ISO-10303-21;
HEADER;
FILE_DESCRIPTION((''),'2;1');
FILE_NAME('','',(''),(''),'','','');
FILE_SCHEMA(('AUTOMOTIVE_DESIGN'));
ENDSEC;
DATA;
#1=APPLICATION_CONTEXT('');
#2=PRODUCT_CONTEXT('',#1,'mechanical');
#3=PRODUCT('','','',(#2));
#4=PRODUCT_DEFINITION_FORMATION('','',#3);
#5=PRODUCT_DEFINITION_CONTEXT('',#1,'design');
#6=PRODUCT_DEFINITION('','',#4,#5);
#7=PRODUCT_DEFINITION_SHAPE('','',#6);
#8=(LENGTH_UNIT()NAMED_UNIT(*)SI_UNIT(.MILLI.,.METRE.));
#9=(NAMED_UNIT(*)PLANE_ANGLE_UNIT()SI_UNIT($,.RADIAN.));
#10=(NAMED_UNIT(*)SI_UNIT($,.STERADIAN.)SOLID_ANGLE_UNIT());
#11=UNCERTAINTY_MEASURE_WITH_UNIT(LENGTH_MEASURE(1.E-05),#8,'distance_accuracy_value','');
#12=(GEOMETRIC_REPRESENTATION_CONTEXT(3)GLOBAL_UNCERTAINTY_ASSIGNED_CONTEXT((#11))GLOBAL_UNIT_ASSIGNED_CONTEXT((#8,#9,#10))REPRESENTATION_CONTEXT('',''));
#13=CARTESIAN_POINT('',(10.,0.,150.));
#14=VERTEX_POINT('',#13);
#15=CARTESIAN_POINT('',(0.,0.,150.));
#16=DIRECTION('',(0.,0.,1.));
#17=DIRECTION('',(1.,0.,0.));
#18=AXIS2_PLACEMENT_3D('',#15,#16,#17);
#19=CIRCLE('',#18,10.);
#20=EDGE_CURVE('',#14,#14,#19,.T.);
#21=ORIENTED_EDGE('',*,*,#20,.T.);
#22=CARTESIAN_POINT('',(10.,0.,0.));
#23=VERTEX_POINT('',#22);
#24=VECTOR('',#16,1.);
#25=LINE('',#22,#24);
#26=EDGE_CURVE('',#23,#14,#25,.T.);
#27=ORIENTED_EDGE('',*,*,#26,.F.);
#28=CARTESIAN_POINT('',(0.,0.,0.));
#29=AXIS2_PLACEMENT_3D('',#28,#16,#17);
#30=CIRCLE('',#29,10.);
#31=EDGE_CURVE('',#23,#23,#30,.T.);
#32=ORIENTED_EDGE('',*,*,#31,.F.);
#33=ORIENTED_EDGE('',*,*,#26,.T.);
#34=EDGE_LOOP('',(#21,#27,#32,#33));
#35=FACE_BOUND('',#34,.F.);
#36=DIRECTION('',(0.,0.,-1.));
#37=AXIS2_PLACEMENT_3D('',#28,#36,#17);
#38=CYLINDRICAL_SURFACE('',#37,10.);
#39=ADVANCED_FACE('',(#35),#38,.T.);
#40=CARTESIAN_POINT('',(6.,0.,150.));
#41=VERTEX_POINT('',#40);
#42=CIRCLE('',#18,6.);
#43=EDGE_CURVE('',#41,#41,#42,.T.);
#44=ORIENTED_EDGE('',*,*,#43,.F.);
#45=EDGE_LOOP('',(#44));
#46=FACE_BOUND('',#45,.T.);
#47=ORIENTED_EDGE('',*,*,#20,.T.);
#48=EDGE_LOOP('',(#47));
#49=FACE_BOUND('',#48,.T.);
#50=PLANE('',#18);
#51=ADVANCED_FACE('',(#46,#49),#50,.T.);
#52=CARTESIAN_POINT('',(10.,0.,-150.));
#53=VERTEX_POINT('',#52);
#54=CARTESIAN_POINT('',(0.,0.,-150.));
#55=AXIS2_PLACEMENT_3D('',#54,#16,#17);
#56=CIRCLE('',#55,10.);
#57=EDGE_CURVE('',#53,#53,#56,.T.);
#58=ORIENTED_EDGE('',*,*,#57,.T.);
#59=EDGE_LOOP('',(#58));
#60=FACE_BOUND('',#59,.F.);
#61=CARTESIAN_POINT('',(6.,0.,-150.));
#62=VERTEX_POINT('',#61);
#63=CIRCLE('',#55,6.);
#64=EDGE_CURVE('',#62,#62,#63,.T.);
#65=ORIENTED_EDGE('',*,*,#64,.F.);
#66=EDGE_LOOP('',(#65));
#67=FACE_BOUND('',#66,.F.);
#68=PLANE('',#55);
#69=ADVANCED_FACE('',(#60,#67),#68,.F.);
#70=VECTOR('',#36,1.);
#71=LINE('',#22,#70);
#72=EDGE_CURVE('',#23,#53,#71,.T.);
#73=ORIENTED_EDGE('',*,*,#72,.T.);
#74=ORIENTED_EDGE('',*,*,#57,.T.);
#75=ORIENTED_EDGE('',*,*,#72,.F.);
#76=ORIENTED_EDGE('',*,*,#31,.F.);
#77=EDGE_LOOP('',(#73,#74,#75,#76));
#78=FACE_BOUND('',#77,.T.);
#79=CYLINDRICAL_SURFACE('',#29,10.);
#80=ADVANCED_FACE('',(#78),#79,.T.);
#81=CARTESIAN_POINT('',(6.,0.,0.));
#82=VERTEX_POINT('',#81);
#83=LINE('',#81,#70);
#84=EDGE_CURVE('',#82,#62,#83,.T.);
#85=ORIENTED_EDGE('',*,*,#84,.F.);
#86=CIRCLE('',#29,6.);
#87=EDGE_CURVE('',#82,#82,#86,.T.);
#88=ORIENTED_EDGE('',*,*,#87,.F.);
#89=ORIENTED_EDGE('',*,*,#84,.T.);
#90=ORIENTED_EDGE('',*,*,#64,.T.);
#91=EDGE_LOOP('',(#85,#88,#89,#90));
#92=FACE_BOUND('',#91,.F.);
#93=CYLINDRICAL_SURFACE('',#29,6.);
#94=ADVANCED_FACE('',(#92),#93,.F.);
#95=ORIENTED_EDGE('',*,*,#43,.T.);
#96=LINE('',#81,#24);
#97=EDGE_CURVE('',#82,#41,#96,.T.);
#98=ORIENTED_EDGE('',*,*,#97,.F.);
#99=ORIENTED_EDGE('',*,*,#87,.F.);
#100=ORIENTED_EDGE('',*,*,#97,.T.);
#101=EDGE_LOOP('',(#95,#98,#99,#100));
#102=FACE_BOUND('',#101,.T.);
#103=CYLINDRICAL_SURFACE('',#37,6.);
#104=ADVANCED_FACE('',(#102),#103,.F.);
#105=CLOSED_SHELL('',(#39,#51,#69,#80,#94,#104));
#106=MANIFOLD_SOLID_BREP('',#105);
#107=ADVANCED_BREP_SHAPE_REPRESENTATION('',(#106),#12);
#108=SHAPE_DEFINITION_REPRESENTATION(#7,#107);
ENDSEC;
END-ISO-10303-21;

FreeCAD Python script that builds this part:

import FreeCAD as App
import Part
import Sketcher
from FreeCAD import Vector
Q = App.Units.Quantity

doc = App.newDocument("Part")
body = doc.addObject("PartDesign::Body", "Body")

# Sketch on XY plane
sketch1 = body.newObject("Sketcher::SketchObject", "Sketch")
sketch1.AttachmentSupport = (doc.getObject("XY_Plane"), [""])
sketch1.MapMode = "FlatFace"
sketch1.addGeometry([
    Part.Circle(Vector(0, 0, 0), Vector(0, 0, 1), 10),
    Part.Circle(Vector(0, 0, 0), Vector(0, 0, 1), 6),
], False)
sketch1.addConstraint([
    Sketcher.Constraint("Coincident", 0, 3, -1, 1),
    Sketcher.Constraint("Coincident", 1, 3, -1, 1),
    Sketcher.Constraint("Diameter", 0, Q("20 mm")),
    Sketcher.Constraint("Diameter", 1, Q("12 mm")),
])
pad1 = body.newObject("PartDesign::Pad", "Pad")
pad1.Profile = sketch1
pad1.Length = 300
pad1.Midplane = True

doc.recompute()
